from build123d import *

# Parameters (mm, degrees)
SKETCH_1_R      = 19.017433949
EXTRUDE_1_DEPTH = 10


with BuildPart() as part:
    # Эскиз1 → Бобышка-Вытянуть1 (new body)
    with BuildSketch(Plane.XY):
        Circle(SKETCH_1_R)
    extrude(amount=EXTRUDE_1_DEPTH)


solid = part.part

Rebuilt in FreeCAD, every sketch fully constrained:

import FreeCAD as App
import Part
import Sketcher

V = App.Vector
Q = App.Units.Quantity

doc = App.newDocument("Part")
body = doc.addObject("PartDesign::Body", "Body")

sketch1 = body.newObject("Sketcher::SketchObject", "Sketch")
sketch1.AttachmentSupport = (doc.getObject("XY_Plane"), [""])
sketch1.MapMode = "FlatFace"
sketch1.addGeometry(Part.Circle(V(0, 0, 0), V(0, 0, 1), 19.017434), False)
sketch1.addConstraint(Sketcher.Constraint("Coincident", 0, 3, -1, 1))
sketch1.addConstraint(Sketcher.Constraint("Diameter", 0, Q("38.034868 mm")))
pad1 = body.newObject("PartDesign::Pad", "Pad")
pad1.Profile = sketch1
pad1.Length = 10

doc.recompute()
